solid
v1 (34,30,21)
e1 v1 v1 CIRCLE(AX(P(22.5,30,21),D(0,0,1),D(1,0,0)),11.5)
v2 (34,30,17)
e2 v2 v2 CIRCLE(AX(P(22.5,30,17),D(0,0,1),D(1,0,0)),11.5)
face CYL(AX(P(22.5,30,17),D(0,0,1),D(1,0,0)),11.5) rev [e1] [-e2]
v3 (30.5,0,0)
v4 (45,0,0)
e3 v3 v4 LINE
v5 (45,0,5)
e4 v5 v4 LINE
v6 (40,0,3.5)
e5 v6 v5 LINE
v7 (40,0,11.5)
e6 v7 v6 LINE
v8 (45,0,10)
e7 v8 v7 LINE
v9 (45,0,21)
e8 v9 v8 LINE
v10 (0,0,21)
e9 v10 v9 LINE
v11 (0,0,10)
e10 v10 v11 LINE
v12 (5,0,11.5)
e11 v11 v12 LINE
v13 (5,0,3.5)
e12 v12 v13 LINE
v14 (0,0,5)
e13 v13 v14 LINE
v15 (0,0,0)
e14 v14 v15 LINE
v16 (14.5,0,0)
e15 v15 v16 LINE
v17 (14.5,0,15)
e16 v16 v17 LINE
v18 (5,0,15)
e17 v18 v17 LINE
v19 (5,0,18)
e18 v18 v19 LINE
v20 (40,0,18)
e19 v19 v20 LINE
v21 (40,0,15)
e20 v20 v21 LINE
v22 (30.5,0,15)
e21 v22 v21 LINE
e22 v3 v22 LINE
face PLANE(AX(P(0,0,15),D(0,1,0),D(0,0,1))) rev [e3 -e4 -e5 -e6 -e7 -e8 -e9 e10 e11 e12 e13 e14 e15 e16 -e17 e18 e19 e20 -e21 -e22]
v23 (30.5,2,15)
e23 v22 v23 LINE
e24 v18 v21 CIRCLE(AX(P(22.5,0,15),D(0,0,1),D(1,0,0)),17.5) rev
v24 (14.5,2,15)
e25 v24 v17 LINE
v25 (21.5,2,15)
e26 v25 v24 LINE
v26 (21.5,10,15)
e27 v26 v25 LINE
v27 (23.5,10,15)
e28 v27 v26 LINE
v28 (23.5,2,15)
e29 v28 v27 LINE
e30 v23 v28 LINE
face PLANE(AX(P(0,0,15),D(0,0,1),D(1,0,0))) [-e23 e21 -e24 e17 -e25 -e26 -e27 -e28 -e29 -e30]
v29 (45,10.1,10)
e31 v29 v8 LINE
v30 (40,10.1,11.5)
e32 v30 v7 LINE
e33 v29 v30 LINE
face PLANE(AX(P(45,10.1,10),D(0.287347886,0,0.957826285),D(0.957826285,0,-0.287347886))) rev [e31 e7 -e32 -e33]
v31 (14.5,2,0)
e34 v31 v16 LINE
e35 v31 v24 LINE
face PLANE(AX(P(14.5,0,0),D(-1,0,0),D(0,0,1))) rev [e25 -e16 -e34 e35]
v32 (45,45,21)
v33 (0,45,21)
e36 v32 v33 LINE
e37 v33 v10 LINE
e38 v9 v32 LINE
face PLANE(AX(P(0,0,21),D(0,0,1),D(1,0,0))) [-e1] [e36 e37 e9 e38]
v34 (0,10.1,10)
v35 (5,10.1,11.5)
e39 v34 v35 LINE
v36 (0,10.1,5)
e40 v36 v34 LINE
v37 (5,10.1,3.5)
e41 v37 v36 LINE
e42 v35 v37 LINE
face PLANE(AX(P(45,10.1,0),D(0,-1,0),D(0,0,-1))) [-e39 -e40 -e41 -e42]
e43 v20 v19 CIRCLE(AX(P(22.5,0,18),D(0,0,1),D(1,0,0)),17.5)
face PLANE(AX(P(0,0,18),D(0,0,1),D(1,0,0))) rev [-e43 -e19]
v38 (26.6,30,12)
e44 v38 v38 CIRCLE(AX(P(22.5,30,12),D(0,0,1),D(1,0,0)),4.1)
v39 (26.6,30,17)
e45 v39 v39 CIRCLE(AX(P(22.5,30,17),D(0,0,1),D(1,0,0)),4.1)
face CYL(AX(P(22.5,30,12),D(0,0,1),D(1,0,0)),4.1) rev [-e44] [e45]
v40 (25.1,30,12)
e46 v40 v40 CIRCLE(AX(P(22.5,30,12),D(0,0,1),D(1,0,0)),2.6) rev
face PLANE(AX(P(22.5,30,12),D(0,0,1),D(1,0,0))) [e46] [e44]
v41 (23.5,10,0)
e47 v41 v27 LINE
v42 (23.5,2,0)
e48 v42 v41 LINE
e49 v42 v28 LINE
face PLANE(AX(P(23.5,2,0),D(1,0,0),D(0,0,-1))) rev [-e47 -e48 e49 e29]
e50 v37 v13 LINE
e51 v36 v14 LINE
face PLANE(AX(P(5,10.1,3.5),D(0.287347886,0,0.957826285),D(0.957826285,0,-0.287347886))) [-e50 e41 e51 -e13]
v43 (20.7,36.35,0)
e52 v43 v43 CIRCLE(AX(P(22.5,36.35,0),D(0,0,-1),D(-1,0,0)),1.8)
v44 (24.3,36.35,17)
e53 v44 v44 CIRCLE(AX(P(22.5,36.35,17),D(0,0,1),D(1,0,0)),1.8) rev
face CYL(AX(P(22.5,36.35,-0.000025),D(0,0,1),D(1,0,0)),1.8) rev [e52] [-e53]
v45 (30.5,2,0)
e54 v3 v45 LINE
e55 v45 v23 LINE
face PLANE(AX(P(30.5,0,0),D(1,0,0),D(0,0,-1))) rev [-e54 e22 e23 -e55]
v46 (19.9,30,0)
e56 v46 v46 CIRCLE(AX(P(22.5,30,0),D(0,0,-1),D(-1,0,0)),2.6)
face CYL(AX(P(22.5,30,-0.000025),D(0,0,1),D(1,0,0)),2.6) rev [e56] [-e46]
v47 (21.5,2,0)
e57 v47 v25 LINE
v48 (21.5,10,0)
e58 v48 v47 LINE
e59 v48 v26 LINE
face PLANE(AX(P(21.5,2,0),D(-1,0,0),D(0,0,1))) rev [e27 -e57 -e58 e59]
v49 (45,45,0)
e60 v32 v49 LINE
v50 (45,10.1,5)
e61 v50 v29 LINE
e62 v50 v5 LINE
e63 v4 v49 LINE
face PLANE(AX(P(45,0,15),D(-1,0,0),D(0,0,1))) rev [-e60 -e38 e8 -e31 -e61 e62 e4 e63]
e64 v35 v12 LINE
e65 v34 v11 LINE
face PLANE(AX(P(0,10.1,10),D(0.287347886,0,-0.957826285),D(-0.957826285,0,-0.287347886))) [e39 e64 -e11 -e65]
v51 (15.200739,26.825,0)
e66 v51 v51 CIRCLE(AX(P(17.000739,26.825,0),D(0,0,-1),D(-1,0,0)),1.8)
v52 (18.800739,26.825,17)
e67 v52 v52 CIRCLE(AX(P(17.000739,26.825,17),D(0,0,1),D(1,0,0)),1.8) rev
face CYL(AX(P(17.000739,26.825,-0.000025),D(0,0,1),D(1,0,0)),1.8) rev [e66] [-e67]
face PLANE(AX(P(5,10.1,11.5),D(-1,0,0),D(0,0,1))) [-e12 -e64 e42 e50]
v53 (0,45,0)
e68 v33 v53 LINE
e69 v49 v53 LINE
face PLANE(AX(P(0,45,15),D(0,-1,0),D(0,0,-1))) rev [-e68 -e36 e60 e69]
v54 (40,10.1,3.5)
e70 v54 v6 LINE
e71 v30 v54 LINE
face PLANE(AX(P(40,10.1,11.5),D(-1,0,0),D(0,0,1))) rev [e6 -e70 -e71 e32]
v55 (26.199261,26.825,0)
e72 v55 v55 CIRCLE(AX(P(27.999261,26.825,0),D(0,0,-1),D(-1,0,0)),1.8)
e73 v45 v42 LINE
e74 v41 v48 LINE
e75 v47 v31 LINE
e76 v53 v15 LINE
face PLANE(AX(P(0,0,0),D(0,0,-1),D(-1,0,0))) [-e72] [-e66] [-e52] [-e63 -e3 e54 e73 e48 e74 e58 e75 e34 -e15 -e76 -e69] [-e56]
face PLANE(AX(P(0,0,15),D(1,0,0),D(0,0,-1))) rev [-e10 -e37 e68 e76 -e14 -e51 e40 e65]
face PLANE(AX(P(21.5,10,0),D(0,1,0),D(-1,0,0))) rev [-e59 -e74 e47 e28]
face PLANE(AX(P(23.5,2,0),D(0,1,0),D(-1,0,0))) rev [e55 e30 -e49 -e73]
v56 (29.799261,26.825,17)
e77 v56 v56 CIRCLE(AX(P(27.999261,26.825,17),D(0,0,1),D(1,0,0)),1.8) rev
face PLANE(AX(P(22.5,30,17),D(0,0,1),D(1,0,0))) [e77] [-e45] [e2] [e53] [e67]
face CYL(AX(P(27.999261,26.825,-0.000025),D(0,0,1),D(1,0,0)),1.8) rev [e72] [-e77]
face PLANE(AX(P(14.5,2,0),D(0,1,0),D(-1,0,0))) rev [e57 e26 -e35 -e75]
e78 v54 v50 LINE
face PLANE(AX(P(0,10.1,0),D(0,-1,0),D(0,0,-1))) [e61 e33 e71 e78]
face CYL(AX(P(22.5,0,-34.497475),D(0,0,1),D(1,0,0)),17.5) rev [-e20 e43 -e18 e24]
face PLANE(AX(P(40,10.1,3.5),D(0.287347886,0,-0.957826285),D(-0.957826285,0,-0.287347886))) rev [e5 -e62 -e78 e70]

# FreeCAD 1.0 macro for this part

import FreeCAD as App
import Part
import Sketcher
from FreeCAD import Vector


def add_polygon(sketch, points):
    """Adds a closed chain of lines whose ends are joined by coincident constraints."""
    first, n = sketch.GeometryCount, len(points)
    for a, b in zip(points, points[1:] + points[:1]):
        sketch.addGeometry(Part.LineSegment(App.Vector(*a, 0), App.Vector(*b, 0)), False)
    for i in range(n):
        sketch.addConstraint(Sketcher.Constraint("Coincident", first + i, 2, first + (i + 1) % n, 1))

doc = App.newDocument("Part")
body = doc.addObject("PartDesign::Body", "Body")

# Sketch on XY plane
sketch1 = body.newObject("Sketcher::SketchObject", "Sketch")
sketch1.AttachmentSupport = (doc.getObject("XY_Plane"), [""])
sketch1.MapMode = "FlatFace"
add_polygon(sketch1, [(0, 45), (0, 0), (45, 0), (45, 45)])  # lines 0-3
sketch1.addConstraint(Sketcher.Constraint("Vertical", 0))
sketch1.addConstraint(Sketcher.Constraint("Horizontal", 1))
sketch1.addConstraint(Sketcher.Constraint("Vertical", 2))
sketch1.addConstraint(Sketcher.Constraint("Horizontal", 3))
sketch1.addConstraint(Sketcher.Constraint("Coincident", 0, 2, -1, 1))
sketch1.addConstraint(Sketcher.Constraint("Equal", 3, 0))
sketch1.addConstraint(Sketcher.Constraint("DistanceX", 1, 1, 1, 2, 45.0))
pad1 = body.newObject("PartDesign::Pad", "Pad")
pad1.Profile = sketch1
pad1.Length = 15

# Sketch on XY plane
sketch2 = body.newObject("Sketcher::SketchObject", "Sketch001")
sketch2.AttachmentSupport = (doc.getObject("XY_Plane"), [""])
sketch2.MapMode = "FlatFace"
sketch2.AttachmentOffset = App.Placement(Vector(0, 0, 15), App.Rotation())
add_polygon(sketch2, [(14.5, 0), (30.5, 0), (30.5, 2), (23.5, 2), (23.5, 10), (21.5, 10), (21.5, 2), (14.5, 2)])  # lines 0-7
sketch2.addConstraint(Sketcher.Constraint("Horizontal", 0))
sketch2.addConstraint(Sketcher.Constraint("Vertical", 1))
sketch2.addConstraint(Sketcher.Constraint("Horizontal", 2))
sketch2.addConstraint(Sketcher.Constraint("Vertical", 3))
sketch2.addConstraint(Sketcher.Constraint("Horizontal", 4))
sketch2.addConstraint(Sketcher.Constraint("Vertical", 5))
sketch2.addConstraint(Sketcher.Constraint("Horizontal", 6))
sketch2.addConstraint(Sketcher.Constraint("Vertical", 7))
sketch2.addConstraint(Sketcher.Constraint("PointOnObject", 0, 2, -1))
sketch2.addConstraint(Sketcher.Constraint("Horizontal", 2, 2, 5, 2))
sketch2.addConstraint(Sketcher.Constraint("Equal", 2, 6))
sketch2.addConstraint(Sketcher.Constraint("Equal", 4, 1))
sketch2.addConstraint(Sketcher.Constraint("DistanceX", 0, 1, 0, 2, 16.0))
sketch2.addConstraint(Sketcher.Constraint("DistanceX", 2, 2, 2, 1, 7.0))
sketch2.addConstraint(Sketcher.Constraint("DistanceY", 3, 1, 3, 2, 8.0))
sketch2.addConstraint(Sketcher.Constraint("DistanceX", -1, 1, 0, 2, 30.5))
pocket1 = body.newObject("PartDesign::Pocket", "Pocket")
pocket1.Profile = sketch2
pocket1.Type = "ThroughAll"

# Sketch on XZ plane
sketch3 = body.newObject("Sketcher::SketchObject", "Sketch002")
sketch3.AttachmentSupport = (doc.getObject("XZ_Plane"), [""])
sketch3.MapMode = "FlatFace"
add_polygon(sketch3, [(45, 10), (40, 12), (40, 4), (45, 5)])  # lines 0-3
sketch3.addConstraint(Sketcher.Constraint("Vertical", 1))
sketch3.addConstraint(Sketcher.Constraint("Vertical", 3))
sketch3.addConstraint(Sketcher.Constraint("Equal", 0, 2))
sketch3.addConstraint(Sketcher.Constraint("DistanceY", 1, 2, 1, 1, 8.0))
sketch3.addConstraint(Sketcher.Constraint("DistanceY", 3, 1, 3, 2, 5.0))
sketch3.addConstraint(Sketcher.Constraint("DistanceX", -1, 1, 0, 2, 40.0))
sketch3.addConstraint(Sketcher.Constraint("DistanceX", -1, 1, 2, 2, 45.0))
sketch3.addConstraint(Sketcher.Constraint("DistanceY", -1, 1, 2, 2, 5.0))
pocket2 = body.newObject("PartDesign::Pocket", "Pocket001")
pocket2.Profile = sketch3
pocket2.Length = 10.1
doc.recompute()

datumplane = body.newObject("PartDesign::Plane", "DatumPlane")
datumplane.AttachmentSupport = (doc.getObject("YZ_Plane"), [""])
datumplane.MapMode = "FlatFace"
datumplane.AttachmentOffset = App.Placement(Vector(0, 0, 22.5), App.Rotation())
mirrored = body.newObject("PartDesign::Mirrored", "Mirrored")
mirrored.Originals = [pocket2]
mirrored.MirrorPlane = (datumplane, [""])
body.Tip = mirrored

# Sketch on XY plane
sketch4 = body.newObject("Sketcher::SketchObject", "Sketch003")
sketch4.AttachmentSupport = (doc.getObject("XY_Plane"), [""])
sketch4.MapMode = "FlatFace"
sketch4.AttachmentOffset = App.Placement(Vector(0, 0, 15), App.Rotation())
add_polygon(sketch4, [(0, 45), (0, 0), (45, 0), (45, 45)])  # lines 0-3
sketch4.addConstraint(Sketcher.Constraint("Vertical", 0))
sketch4.addConstraint(Sketcher.Constraint("Horizontal", 1))
sketch4.addConstraint(Sketcher.Constraint("Vertical", 2))
sketch4.addConstraint(Sketcher.Constraint("Horizontal", 3))
sketch4.addConstraint(Sketcher.Constraint("Coincident", 0, 2, -1, 1))
sketch4.addConstraint(Sketcher.Constraint("Equal", 3, 0))
sketch4.addConstraint(Sketcher.Constraint("DistanceX", 1, 1, 1, 2, 45.0))
pad2 = body.newObject("PartDesign::Pad", "Pad001")
pad2.Profile = sketch4
pad2.Length = 3

# Sketch on XY plane
sketch5 = body.newObject("Sketcher::SketchObject", "Sketch004")
sketch5.AttachmentSupport = (doc.getObject("XY_Plane"), [""])
sketch5.MapMode = "FlatFace"
sketch5.AttachmentOffset = App.Placement(Vector(0, 0, 18), App.Rotation())
sketch5.addGeometry(Part.Circle(Vector(22, 0, 0), Vector(0, 0, 1), 18), False)
sketch5.addConstraint(Sketcher.Constraint("PointOnObject", 0, 3, -1))
sketch5.addConstraint(Sketcher.Constraint("Diameter", 0, 35.0))
sketch5.addConstraint(Sketcher.Constraint("DistanceX", -1, 1, 0, 3, 22.5))
pocket3 = body.newObject("PartDesign::Pocket", "Pocket002")
pocket3.Profile = sketch5
pocket3.Length = 3

# Sketch on XY plane
sketch6 = body.newObject("Sketcher::SketchObject", "Sketch005")
sketch6.AttachmentSupport = (doc.getObject("XY_Plane"), [""])
sketch6.MapMode = "FlatFace"
sketch6.AttachmentOffset = App.Placement(Vector(0, 0, 18), App.Rotation())
add_polygon(sketch6, [(0, 45), (0, 0), (45, 0), (45, 45)])  # lines 0-3
sketch6.addConstraint(Sketcher.Constraint("Vertical", 0))
sketch6.addConstraint(Sketcher.Constraint("Horizontal", 1))
sketch6.addConstraint(Sketcher.Constraint("Vertical", 2))
sketch6.addConstraint(Sketcher.Constraint("Horizontal", 3))
sketch6.addConstraint(Sketcher.Constraint("Coincident", 0, 2, -1, 1))
sketch6.addConstraint(Sketcher.Constraint("Equal", 3, 0))
sketch6.addConstraint(Sketcher.Constraint("DistanceX", 1, 1, 1, 2, 45.0))
pad3 = body.newObject("PartDesign::Pad", "Pad002")
pad3.Profile = sketch6
pad3.Length = 3

# Sketch on XY plane
sketch7 = body.newObject("Sketcher::SketchObject", "Sketch006")
sketch7.AttachmentSupport = (doc.getObject("XY_Plane"), [""])
sketch7.MapMode = "FlatFace"
sketch7.AttachmentOffset = App.Placement(Vector(0, 0, 21), App.Rotation())
sketch7.addGeometry(Part.Circle(Vector(22.5, 30, 0), Vector(0, 0, 1), 2.6), False)
sketch7.addConstraint(Sketcher.Constraint("Diameter", 0, 5.2))
sketch7.addConstraint(Sketcher.Constraint("DistanceY", -1, 1, 0, 3, 30.0))
sketch7.addConstraint(Sketcher.Constraint("DistanceX", -1, 1, 0, 3, 22.5))
pocket4 = body.newObject("PartDesign::Pocket", "Pocket003")
pocket4.Profile = sketch7
pocket4.Type = "ThroughAll"

# Sketch on XY plane
sketch8 = body.newObject("Sketcher::SketchObject", "Sketch007")
sketch8.AttachmentSupport = (doc.getObject("XY_Plane"), [""])
sketch8.MapMode = "FlatFace"
sketch8.AttachmentOffset = App.Placement(Vector(0, 0, 21), App.Rotation())
sketch8.addGeometry(Part.Circle(Vector(22.5, 36.4, 0), Vector(0, 0, 1), 1.8), False)
sketch8.addGeometry(Part.Circle(Vector(28, 26.8, 0), Vector(0, 0, 1), 1.8), False)
sketch8.addGeometry(Part.Circle(Vector(17, 26.8, 0), Vector(0, 0, 1), 1.8), False)
sketch8.addConstraint(Sketcher.Constraint("Equal", 0, 1))
sketch8.addConstraint(Sketcher.Constraint("Equal", 1, 2))
sketch8.addConstraint(Sketcher.Constraint("Horizontal", 1, 3, 2, 3))
sketch8.addConstraint(Sketcher.Constraint("Diameter", 0, 3.6))
sketch8.addConstraint(Sketcher.Constraint("DistanceX", -1, 1, 0, 3, 22.5))
sketch8.addConstraint(Sketcher.Constraint("DistanceY", -1, 1, 0, 3, 36.35))
sketch8.addConstraint(Sketcher.Constraint("DistanceY", -1, 1, 1, 3, 26.825))
sketch8.addConstraint(Sketcher.Constraint("DistanceX", -1, 1, 1, 3, 27.999261))
sketch8.addConstraint(Sketcher.Constraint("DistanceX", -1, 1, 2, 3, 17.000739))
pocket5 = body.newObject("PartDesign::Pocket", "Pocket004")
pocket5.Profile = sketch8
pocket5.Type = "ThroughAll"

# Sketch on XY plane
sketch9 = body.newObject("Sketcher::SketchObject", "Sketch008")
sketch9.AttachmentSupport = (doc.getObject("XY_Plane"), [""])
sketch9.MapMode = "FlatFace"
sketch9.AttachmentOffset = App.Placement(Vector(0, 0, 21), App.Rotation())
sketch9.addGeometry(Part.Circle(Vector(22, 30, 0), Vector(0, 0, 1), 12), False)
sketch9.addConstraint(Sketcher.Constraint("Diameter", 0, 23.0))
sketch9.addConstraint(Sketcher.Constraint("DistanceY", -1, 1, 0, 3, 30.0))
sketch9.addConstraint(Sketcher.Constraint("DistanceX", -1, 1, 0, 3, 22.5))
pocket6 = body.newObject("PartDesign::Pocket", "Pocket005")
pocket6.Profile = sketch9
pocket6.Length = 4

# Sketch on XY plane
sketch10 = body.newObject("Sketcher::SketchObject", "Sketch009")
sketch10.AttachmentSupport = (doc.getObject("XY_Plane"), [""])
sketch10.MapMode = "FlatFace"
sketch10.AttachmentOffset = App.Placement(Vector(0, 0, 17), App.Rotation())
sketch10.addGeometry(Part.Circle(Vector(22.5, 30, 0), Vector(0, 0, 1), 4.1), False)
sketch10.addConstraint(Sketcher.Constraint("Diameter", 0, 8.2))
sketch10.addConstraint(Sketcher.Constraint("DistanceY", -1, 1, 0, 3, 30.0))
sketch10.addConstraint(Sketcher.Constraint("DistanceX", -1, 1, 0, 3, 22.5))
pocket7 = body.newObject("PartDesign::Pocket", "Pocket006")
pocket7.Profile = sketch10
pocket7.Length = 5

doc.recompute()
